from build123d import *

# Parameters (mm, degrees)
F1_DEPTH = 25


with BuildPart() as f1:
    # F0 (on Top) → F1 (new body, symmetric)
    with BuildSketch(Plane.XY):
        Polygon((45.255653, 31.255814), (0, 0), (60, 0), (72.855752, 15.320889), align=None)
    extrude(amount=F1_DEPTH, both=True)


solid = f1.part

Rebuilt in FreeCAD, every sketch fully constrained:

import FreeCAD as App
import Part
import Sketcher
from FreeCAD import Vector
Q = App.Units.Quantity

doc = App.newDocument("Part")
params = doc.addObject("Spreadsheet::Sheet", "Params")
for row, (alias, value) in enumerate([
    ("sketch1_width", "60 mm"),
    ("sketch1_length", "55 mm"),
    ("sketch1_length2", "20 mm"),
    ("pad1_length", "50 mm"),
], start=1):
    params.set(f"A{row}", alias)
    params.set(f"B{row}", "=" + value)
    params.setAlias(f"B{row}", alias)

body = doc.addObject("PartDesign::Body", "Body")

sketch1 = body.newObject("Sketcher::SketchObject", "Sketch")
sketch1.AttachmentSupport = (doc.getObject("XY_Plane"), [""])
sketch1.MapMode = "FlatFace"
sketch1.addGeometry([
    Part.LineSegment(Vector(45, 31, 0), Vector(0, 0, 0)),
    Part.LineSegment(Vector(0, 0, 0), Vector(60, 0, 0)),
    Part.LineSegment(Vector(60, 0, 0), Vector(73, 15, 0)),
    Part.LineSegment(Vector(73, 15, 0), Vector(45, 31, 0)),
], False)
sketch1.addConstraint([
    Sketcher.Constraint("Coincident", 0, 2, 1, 1),
    Sketcher.Constraint("Coincident", 1, 2, 2, 1),
    Sketcher.Constraint("Coincident", 2, 2, 3, 1),
    Sketcher.Constraint("Coincident", 3, 2, 0, 1),
    Sketcher.Constraint("Horizontal", 1),
    Sketcher.Constraint("Coincident", 0, 2, -1, 1),
    Sketcher.Constraint("DistanceX", 1, 1, 1, 2, Q("60 mm")),
    Sketcher.Constraint("Angle", 2, Q("50.000001 deg")),
    Sketcher.Constraint("Angle", 3, Q("149.999999 deg")),
    Sketcher.Constraint("Distance", 0, Q("55 mm")),
    Sketcher.Constraint("Distance", 2, Q("20 mm")),
])
sketch1.setExpression("Constraints[6]", "Params.sketch1_width")
sketch1.setExpression("Constraints[9]", "Params.sketch1_length")
sketch1.setExpression("Constraints[10]", "Params.sketch1_length2")
pad1 = body.newObject("PartDesign::Pad", "Pad")
pad1.Profile = sketch1
pad1.setExpression("Length", "Params.pad1_length")
pad1.Midplane = True

doc.recompute()
